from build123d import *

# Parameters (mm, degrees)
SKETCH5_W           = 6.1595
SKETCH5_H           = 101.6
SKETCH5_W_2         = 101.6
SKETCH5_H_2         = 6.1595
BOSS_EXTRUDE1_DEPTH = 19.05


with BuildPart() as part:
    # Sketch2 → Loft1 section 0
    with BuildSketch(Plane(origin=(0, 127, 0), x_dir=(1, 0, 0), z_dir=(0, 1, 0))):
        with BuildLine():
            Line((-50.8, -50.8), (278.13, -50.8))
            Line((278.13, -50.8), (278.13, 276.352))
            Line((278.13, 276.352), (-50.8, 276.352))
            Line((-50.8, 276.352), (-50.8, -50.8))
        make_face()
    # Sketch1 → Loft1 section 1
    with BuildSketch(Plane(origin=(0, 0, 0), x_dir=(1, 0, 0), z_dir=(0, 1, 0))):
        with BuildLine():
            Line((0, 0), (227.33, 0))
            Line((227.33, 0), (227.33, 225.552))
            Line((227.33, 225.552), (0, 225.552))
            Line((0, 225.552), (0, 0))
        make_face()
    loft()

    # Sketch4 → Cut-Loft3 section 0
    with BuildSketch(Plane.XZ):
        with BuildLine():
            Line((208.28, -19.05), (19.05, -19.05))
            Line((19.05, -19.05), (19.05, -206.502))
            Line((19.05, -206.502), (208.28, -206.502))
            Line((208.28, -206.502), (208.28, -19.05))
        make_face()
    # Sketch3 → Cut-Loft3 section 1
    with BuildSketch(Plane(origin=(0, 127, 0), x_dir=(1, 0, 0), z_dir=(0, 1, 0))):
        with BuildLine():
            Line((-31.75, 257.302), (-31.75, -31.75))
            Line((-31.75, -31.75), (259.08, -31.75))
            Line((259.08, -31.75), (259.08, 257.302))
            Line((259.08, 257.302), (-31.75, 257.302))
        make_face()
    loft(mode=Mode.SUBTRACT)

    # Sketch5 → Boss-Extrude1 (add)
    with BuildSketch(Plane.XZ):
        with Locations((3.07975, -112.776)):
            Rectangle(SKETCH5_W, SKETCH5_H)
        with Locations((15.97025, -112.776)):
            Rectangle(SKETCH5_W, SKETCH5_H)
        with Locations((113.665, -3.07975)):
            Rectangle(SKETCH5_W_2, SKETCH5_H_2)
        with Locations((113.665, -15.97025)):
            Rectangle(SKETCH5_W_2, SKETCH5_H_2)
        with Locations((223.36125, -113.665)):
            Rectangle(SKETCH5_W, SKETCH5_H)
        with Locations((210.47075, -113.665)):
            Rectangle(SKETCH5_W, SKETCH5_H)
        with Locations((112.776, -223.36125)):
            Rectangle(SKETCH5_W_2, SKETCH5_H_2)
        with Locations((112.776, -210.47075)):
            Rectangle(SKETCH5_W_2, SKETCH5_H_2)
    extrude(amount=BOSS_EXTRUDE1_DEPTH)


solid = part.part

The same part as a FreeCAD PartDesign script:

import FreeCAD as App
import Part
import Sketcher

V = App.Vector
Q = App.Units.Quantity

doc = App.newDocument("Part")
body = doc.addObject("PartDesign::Body", "Body")

# Sketch on XZ plane
sketch1 = doc.addObject("Sketcher::SketchObject", "Sketch")
body.addObject(sketch1)
sketch1.AttachmentSupport = (doc.XZ_Plane, [""])
sketch1.MapMode = "FlatFace"
sketch1.AttachmentOffset = App.Placement(V(0, 0, -5 * 25.4), App.Rotation())
sketch1.addGeometry([
    Part.LineSegment(V(-51, 51, 0), V(278, 51, 0)),
    Part.LineSegment(V(278, 51, 0), V(278, -276, 0)),
    Part.LineSegment(V(278, -276, 0), V(-51, -276, 0)),
    Part.LineSegment(V(-51, -276, 0), V(-51, 51, 0)),
], False)
sketch1.addConstraint([
    Sketcher.Constraint("Coincident", 0, 2, 1, 1),
    Sketcher.Constraint("Coincident", 1, 2, 2, 1),
    Sketcher.Constraint("Coincident", 2, 2, 3, 1),
    Sketcher.Constraint("Coincident", 3, 2, 0, 1),
    Sketcher.Constraint("Horizontal", 0),
    Sketcher.Constraint("Vertical", 1),
    Sketcher.Constraint("Horizontal", 2),
    Sketcher.Constraint("Vertical", 3),
    Sketcher.Constraint("DistanceY", -1, 1, 0, 2, Q("2 in")),
    Sketcher.Constraint("DistanceX", 2, 2, -1, 1, Q("2 in")),
    Sketcher.Constraint("DistanceX", 0, 1, 0, 2, Q("12.95 in")),
    Sketcher.Constraint("DistanceY", 1, 2, 1, 1, Q("12.88 in")),
])

# Sketch on XZ plane
sketch2 = doc.addObject("Sketcher::SketchObject", "Sketch001")
body.addObject(sketch2)
sketch2.AttachmentSupport = (doc.XZ_Plane, [""])
sketch2.MapMode = "FlatFace"
sketch2.addGeometry([
    Part.LineSegment(V(0, 0, 0), V(227, 0, 0)),
    Part.LineSegment(V(227, 0, 0), V(227, -226, 0)),
    Part.LineSegment(V(227, -226, 0), V(0, -226, 0)),
    Part.LineSegment(V(0, -226, 0), V(0, 0, 0)),
], False)
sketch2.addConstraint([
    Sketcher.Constraint("Coincident", 0, 2, 1, 1),
    Sketcher.Constraint("Coincident", 1, 2, 2, 1),
    Sketcher.Constraint("Coincident", 2, 2, 3, 1),
    Sketcher.Constraint("Coincident", 3, 2, 0, 1),
    Sketcher.Constraint("Horizontal", 0),
    Sketcher.Constraint("Vertical", 1),
    Sketcher.Constraint("Horizontal", 2),
    Sketcher.Constraint("Vertical", 3),
    Sketcher.Constraint("Coincident", 3, 2, -1, 1),
    Sketcher.Constraint("DistanceX", 0, 1, 0, 2, Q("8.95 in")),
    Sketcher.Constraint("DistanceY", 1, 2, 1, 1, Q("8.88 in")),
])

additiveloft = doc.addObject("PartDesign::AdditiveLoft", "AdditiveLoft")
body.addObject(additiveloft)
additiveloft.Profile = sketch1
additiveloft.Sections = [sketch2]

# Sketch on XZ plane
sketch3 = doc.addObject("Sketcher::SketchObject", "Sketch002")
body.addObject(sketch3)
sketch3.AttachmentSupport = (doc.XZ_Plane, [""])
sketch3.MapMode = "FlatFace"
sketch3.addGeometry([
    Part.LineSegment(V(208, -19, 0), V(19, -19, 0)),
    Part.LineSegment(V(19, -19, 0), V(19, -207, 0)),
    Part.LineSegment(V(19, -207, 0), V(208, -207, 0)),
    Part.LineSegment(V(208, -207, 0), V(208, -19, 0)),
], False)
sketch3.addConstraint([
    Sketcher.Constraint("Coincident", 0, 2, 1, 1),
    Sketcher.Constraint("Coincident", 1, 2, 2, 1),
    Sketcher.Constraint("Coincident", 2, 2, 3, 1),
    Sketcher.Constraint("Coincident", 3, 2, 0, 1),
    Sketcher.Constraint("Horizontal", 0),
    Sketcher.Constraint("Vertical", 1),
    Sketcher.Constraint("Horizontal", 2),
    Sketcher.Constraint("Vertical", 3),
    Sketcher.Constraint("DistanceX", 0, 2, 0, 1, Q("7.45 in")),
    Sketcher.Constraint("DistanceY", 1, 2, 1, 1, Q("7.38 in")),
    Sketcher.Constraint("DistanceX", -1, 1, 2, 2, Q("8.2 in")),
    Sketcher.Constraint("DistanceY", 0, 2, -1, 1, Q("0.75 in")),
])

# Sketch on XZ plane
sketch4 = doc.addObject("Sketcher::SketchObject", "Sketch003")
body.addObject(sketch4)
sketch4.AttachmentSupport = (doc.XZ_Plane, [""])
sketch4.MapMode = "FlatFace"
sketch4.AttachmentOffset = App.Placement(V(0, 0, -5 * 25.4), App.Rotation())
sketch4.addGeometry([
    Part.LineSegment(V(-32, -257, 0), V(-32, 32, 0)),
    Part.LineSegment(V(-32, 32, 0), V(259, 32, 0)),
    Part.LineSegment(V(259, 32, 0), V(259, -257, 0)),
    Part.LineSegment(V(259, -257, 0), V(-32, -257, 0)),
], False)
sketch4.addConstraint([
    Sketcher.Constraint("Coincident", 0, 2, 1, 1),
    Sketcher.Constraint("Coincident", 1, 2, 2, 1),
    Sketcher.Constraint("Coincident", 2, 2, 3, 1),
    Sketcher.Constraint("Coincident", 3, 2, 0, 1),
    Sketcher.Constraint("Vertical", 0),
    Sketcher.Constraint("Horizontal", 1),
    Sketcher.Constraint("Vertical", 2),
    Sketcher.Constraint("Horizontal", 3),
    Sketcher.Constraint("DistanceX", 1, 1, 1, 2, Q("11.45 in")),
    Sketcher.Constraint("DistanceY", 0, 1, 0, 2, Q("11.38 in")),
    Sketcher.Constraint("DistanceX", -1, 1, 1, 2, Q("10.2 in")),
    Sketcher.Constraint("DistanceY", -1, 1, 0, 2, Q("1.25 in")),
])

subtractiveloft = doc.addObject("PartDesign::SubtractiveLoft", "SubtractiveLoft")
body.addObject(subtractiveloft)
subtractiveloft.Profile = sketch3
subtractiveloft.Sections = [sketch4]

# Sketch on XZ plane
sketch5 = doc.addObject("Sketcher::SketchObject", "Sketch004")
body.addObject(sketch5)
sketch5.AttachmentSupport = (doc.XZ_Plane, [""])
sketch5.MapMode = "FlatFace"
sketch5.addGeometry([
    Part.LineSegment(V(0, -62, 0), V(0, -164, 0)),  # 0
    Part.LineSegment(V(0, -164, 0), V(6, -164, 0)),  # 1
    Part.LineSegment(V(6, -164, 0), V(6, -62, 0)),  # 2
    Part.LineSegment(V(6, -62, 0), V(0, -62, 0)),  # 3
    Part.LineSegment(V(13, -62, 0), V(13, -164, 0)),  # 4
    Part.LineSegment(V(13, -164, 0), V(19, -164, 0)),  # 5
    Part.LineSegment(V(19, -164, 0), V(19, -62, 0)),  # 6
    Part.LineSegment(V(19, -62, 0), V(13, -62, 0)),  # 7
    Part.LineSegment(V(63, 0, 0), V(63, -6, 0)),  # 8
    Part.LineSegment(V(63, -6, 0), V(164, -6, 0)),  # 9
    Part.LineSegment(V(164, -6, 0), V(164, 0, 0)),  # 10
    Part.LineSegment(V(164, 0, 0), V(63, 0, 0)),  # 11
    Part.LineSegment(V(63, -13, 0), V(63, -19, 0)),  # 12
    Part.LineSegment(V(63, -19, 0), V(164, -19, 0)),  # 13
    Part.LineSegment(V(164, -19, 0), V(164, -13, 0)),  # 14
    Part.LineSegment(V(164, -13, 0), V(63, -13, 0)),  # 15
    Part.LineSegment(V(220, -63, 0), V(220, -164, 0)),  # 16
    Part.LineSegment(V(220, -164, 0), V(226, -164, 0)),  # 17
    Part.LineSegment(V(226, -164, 0), V(226, -63, 0)),  # 18
    Part.LineSegment(V(226, -63, 0), V(220, -63, 0)),  # 19
    Part.LineSegment(V(207, -63, 0), V(207, -164, 0)),  # 20
    Part.LineSegment(V(207, -164, 0), V(214, -164, 0)),  # 21
    Part.LineSegment(V(214, -164, 0), V(214, -63, 0)),  # 22
    Part.LineSegment(V(214, -63, 0), V(207, -63, 0)),  # 23
    Part.LineSegment(V(62, -220, 0), V(62, -226, 0)),  # 24
    Part.LineSegment(V(62, -226, 0), V(164, -226, 0)),  # 25
    Part.LineSegment(V(164, -226, 0), V(164, -220, 0)),  # 26
    Part.LineSegment(V(164, -220, 0), V(62, -220, 0)),  # 27
    Part.LineSegment(V(62, -207, 0), V(62, -214, 0)),  # 28
    Part.LineSegment(V(62, -214, 0), V(164, -214, 0)),  # 29
    Part.LineSegment(V(164, -214, 0), V(164, -207, 0)),  # 30
    Part.LineSegment(V(164, -207, 0), V(62, -207, 0)),  # 31
], False)
sketch5.addConstraint([
    Sketcher.Constraint("Coincident", 0, 2, 1, 1),
    Sketcher.Constraint("Coincident", 1, 2, 2, 1),
    Sketcher.Constraint("Coincident", 2, 2, 3, 1),
    Sketcher.Constraint("Coincident", 3, 2, 0, 1),
    Sketcher.Constraint("Coincident", 4, 2, 5, 1),
    Sketcher.Constraint("Coincident", 5, 2, 6, 1),
    Sketcher.Constraint("Coincident", 6, 2, 7, 1),
    Sketcher.Constraint("Coincident", 7, 2, 4, 1),
    Sketcher.Constraint("Coincident", 8, 2, 9, 1),
    Sketcher.Constraint("Coincident", 9, 2, 10, 1),
    Sketcher.Constraint("Coincident", 10, 2, 11, 1),
    Sketcher.Constraint("Coincident", 11, 2, 8, 1),
    Sketcher.Constraint("Coincident", 12, 2, 13, 1),
    Sketcher.Constraint("Coincident", 13, 2, 14, 1),
    Sketcher.Constraint("Coincident", 14, 2, 15, 1),
    Sketcher.Constraint("Coincident", 15, 2, 12, 1),
    Sketcher.Constraint("Coincident", 16, 2, 17, 1),
    Sketcher.Constraint("Coincident", 17, 2, 18, 1),
    Sketcher.Constraint("Coincident", 18, 2, 19, 1),
    Sketcher.Constraint("Coincident", 19, 2, 16, 1),
    Sketcher.Constraint("Coincident", 20, 2, 21, 1),
    Sketcher.Constraint("Coincident", 21, 2, 22, 1),
    Sketcher.Constraint("Coincident", 22, 2, 23, 1),
    Sketcher.Constraint("Coincident", 23, 2, 20, 1),
    Sketcher.Constraint("Coincident", 24, 2, 25, 1),
    Sketcher.Constraint("Coincident", 25, 2, 26, 1),
    Sketcher.Constraint("Coincident", 26, 2, 27, 1),
    Sketcher.Constraint("Coincident", 27, 2, 24, 1),
    Sketcher.Constraint("Coincident", 28, 2, 29, 1),
    Sketcher.Constraint("Coincident", 29, 2, 30, 1),
    Sketcher.Constraint("Coincident", 30, 2, 31, 1),
    Sketcher.Constraint("Coincident", 31, 2, 28, 1),
    Sketcher.Constraint("Vertical", 0),
    Sketcher.Constraint("Horizontal", 1),
    Sketcher.Constraint("Vertical", 2),
    Sketcher.Constraint("Horizontal", 3),
    Sketcher.Constraint("Vertical", 4),
    Sketcher.Constraint("Horizontal", 5),
    Sketcher.Constraint("Vertical", 6),
    Sketcher.Constraint("Horizontal", 7),
    Sketcher.Constraint("Vertical", 8),
    Sketcher.Constraint("Horizontal", 9),
    Sketcher.Constraint("Vertical", 10),
    Sketcher.Constraint("Horizontal", 11),
    Sketcher.Constraint("Vertical", 12),
    Sketcher.Constraint("Horizontal", 13),
    Sketcher.Constraint("Vertical", 14),
    Sketcher.Constraint("Horizontal", 15),
    Sketcher.Constraint("Vertical", 16),
    Sketcher.Constraint("Horizontal", 17),
    Sketcher.Constraint("Vertical", 18),
    Sketcher.Constraint("Horizontal", 19),
    Sketcher.Constraint("Vertical", 20),
    Sketcher.Constraint("Horizontal", 21),
    Sketcher.Constraint("Vertical", 22),
    Sketcher.Constraint("Horizontal", 23),
    Sketcher.Constraint("Vertical", 24),
    Sketcher.Constraint("Horizontal", 25),
    Sketcher.Constraint("Vertical", 26),
    Sketcher.Constraint("Horizontal", 27),
    Sketcher.Constraint("Vertical", 28),
    Sketcher.Constraint("Horizontal", 29),
    Sketcher.Constraint("Vertical", 30),
    Sketcher.Constraint("Horizontal", 31),
    Sketcher.Constraint("PointOnObject", 0, 2, -2),
    Sketcher.Constraint("PointOnObject", 10, 2, -1),
    Sketcher.Constraint("Horizontal", 1, 2, 4, 2),
    Sketcher.Constraint("Horizontal", 3, 2, 6, 2),
    Sketcher.Constraint("Horizontal", 17, 2, 20, 2),
    Sketcher.Constraint("Horizontal", 19, 2, 22, 2),
    Sketcher.Constraint("Vertical", 11, 2, 12, 2),
    Sketcher.Constraint("Vertical", 10, 2, 13, 2),
    Sketcher.Constraint("Vertical", 27, 2, 28, 2),
    Sketcher.Constraint("Vertical", 26, 2, 29, 2),
    Sketcher.Constraint("Equal", 3, 5),
    Sketcher.Constraint("Equal", 7, 17),
    Sketcher.Constraint("Equal", 19, 21),
    Sketcher.Constraint("Equal", 15, 25),
    Sketcher.Constraint("Equal", 31, 0),
    Sketcher.Constraint("Equal", 23, 8),
    Sketcher.Constraint("Equal", 10, 12),
    Sketcher.Constraint("Equal", 6, 16),
    Sketcher.Constraint("Equal", 14, 24),
    Sketcher.Constraint("Equal", 26, 28),
    Sketcher.Constraint("DistanceX", 9, 1, 9, 2, Q("4 in")),
    Sketcher.Constraint("DistanceY", 0, 2, -1, 1, Q("6.44 in")),
    Sketcher.Constraint("DistanceX", -1, 1, 5, 2, Q("0.75 in")),
    Sketcher.Constraint("DistanceY", 12, 2, -1, 1, Q("0.75 in")),
    Sketcher.Constraint("DistanceX", -1, 1, 24, 2, Q("2.44 in")),
    Sketcher.Constraint("DistanceX", 13, 2, 17, 2, Q("2.44 in")),
    Sketcher.Constraint("DistanceX", 20, 2, 17, 2, Q("0.75 in")),
    Sketcher.Constraint("DistanceY", 24, 2, 20, 2, Q("2.44 in")),
    Sketcher.Constraint("DistanceY", 25, 2, 30, 2, Q("0.75 in")),
    Sketcher.Constraint("DistanceX", 1, 1, 1, 2, Q("0.2425 in")),
    Sketcher.Constraint("DistanceX", -1, 1, 8, 2, Q("2.475 in")),
    Sketcher.Constraint("DistanceY", 16, 2, -1, 1, Q("6.475 in")),
])
pad1 = doc.addObject("PartDesign::Pad", "Pad")
body.addObject(pad1)
pad1.Profile = sketch5
pad1.Length = Q("0.75 in")

doc.recompute()
